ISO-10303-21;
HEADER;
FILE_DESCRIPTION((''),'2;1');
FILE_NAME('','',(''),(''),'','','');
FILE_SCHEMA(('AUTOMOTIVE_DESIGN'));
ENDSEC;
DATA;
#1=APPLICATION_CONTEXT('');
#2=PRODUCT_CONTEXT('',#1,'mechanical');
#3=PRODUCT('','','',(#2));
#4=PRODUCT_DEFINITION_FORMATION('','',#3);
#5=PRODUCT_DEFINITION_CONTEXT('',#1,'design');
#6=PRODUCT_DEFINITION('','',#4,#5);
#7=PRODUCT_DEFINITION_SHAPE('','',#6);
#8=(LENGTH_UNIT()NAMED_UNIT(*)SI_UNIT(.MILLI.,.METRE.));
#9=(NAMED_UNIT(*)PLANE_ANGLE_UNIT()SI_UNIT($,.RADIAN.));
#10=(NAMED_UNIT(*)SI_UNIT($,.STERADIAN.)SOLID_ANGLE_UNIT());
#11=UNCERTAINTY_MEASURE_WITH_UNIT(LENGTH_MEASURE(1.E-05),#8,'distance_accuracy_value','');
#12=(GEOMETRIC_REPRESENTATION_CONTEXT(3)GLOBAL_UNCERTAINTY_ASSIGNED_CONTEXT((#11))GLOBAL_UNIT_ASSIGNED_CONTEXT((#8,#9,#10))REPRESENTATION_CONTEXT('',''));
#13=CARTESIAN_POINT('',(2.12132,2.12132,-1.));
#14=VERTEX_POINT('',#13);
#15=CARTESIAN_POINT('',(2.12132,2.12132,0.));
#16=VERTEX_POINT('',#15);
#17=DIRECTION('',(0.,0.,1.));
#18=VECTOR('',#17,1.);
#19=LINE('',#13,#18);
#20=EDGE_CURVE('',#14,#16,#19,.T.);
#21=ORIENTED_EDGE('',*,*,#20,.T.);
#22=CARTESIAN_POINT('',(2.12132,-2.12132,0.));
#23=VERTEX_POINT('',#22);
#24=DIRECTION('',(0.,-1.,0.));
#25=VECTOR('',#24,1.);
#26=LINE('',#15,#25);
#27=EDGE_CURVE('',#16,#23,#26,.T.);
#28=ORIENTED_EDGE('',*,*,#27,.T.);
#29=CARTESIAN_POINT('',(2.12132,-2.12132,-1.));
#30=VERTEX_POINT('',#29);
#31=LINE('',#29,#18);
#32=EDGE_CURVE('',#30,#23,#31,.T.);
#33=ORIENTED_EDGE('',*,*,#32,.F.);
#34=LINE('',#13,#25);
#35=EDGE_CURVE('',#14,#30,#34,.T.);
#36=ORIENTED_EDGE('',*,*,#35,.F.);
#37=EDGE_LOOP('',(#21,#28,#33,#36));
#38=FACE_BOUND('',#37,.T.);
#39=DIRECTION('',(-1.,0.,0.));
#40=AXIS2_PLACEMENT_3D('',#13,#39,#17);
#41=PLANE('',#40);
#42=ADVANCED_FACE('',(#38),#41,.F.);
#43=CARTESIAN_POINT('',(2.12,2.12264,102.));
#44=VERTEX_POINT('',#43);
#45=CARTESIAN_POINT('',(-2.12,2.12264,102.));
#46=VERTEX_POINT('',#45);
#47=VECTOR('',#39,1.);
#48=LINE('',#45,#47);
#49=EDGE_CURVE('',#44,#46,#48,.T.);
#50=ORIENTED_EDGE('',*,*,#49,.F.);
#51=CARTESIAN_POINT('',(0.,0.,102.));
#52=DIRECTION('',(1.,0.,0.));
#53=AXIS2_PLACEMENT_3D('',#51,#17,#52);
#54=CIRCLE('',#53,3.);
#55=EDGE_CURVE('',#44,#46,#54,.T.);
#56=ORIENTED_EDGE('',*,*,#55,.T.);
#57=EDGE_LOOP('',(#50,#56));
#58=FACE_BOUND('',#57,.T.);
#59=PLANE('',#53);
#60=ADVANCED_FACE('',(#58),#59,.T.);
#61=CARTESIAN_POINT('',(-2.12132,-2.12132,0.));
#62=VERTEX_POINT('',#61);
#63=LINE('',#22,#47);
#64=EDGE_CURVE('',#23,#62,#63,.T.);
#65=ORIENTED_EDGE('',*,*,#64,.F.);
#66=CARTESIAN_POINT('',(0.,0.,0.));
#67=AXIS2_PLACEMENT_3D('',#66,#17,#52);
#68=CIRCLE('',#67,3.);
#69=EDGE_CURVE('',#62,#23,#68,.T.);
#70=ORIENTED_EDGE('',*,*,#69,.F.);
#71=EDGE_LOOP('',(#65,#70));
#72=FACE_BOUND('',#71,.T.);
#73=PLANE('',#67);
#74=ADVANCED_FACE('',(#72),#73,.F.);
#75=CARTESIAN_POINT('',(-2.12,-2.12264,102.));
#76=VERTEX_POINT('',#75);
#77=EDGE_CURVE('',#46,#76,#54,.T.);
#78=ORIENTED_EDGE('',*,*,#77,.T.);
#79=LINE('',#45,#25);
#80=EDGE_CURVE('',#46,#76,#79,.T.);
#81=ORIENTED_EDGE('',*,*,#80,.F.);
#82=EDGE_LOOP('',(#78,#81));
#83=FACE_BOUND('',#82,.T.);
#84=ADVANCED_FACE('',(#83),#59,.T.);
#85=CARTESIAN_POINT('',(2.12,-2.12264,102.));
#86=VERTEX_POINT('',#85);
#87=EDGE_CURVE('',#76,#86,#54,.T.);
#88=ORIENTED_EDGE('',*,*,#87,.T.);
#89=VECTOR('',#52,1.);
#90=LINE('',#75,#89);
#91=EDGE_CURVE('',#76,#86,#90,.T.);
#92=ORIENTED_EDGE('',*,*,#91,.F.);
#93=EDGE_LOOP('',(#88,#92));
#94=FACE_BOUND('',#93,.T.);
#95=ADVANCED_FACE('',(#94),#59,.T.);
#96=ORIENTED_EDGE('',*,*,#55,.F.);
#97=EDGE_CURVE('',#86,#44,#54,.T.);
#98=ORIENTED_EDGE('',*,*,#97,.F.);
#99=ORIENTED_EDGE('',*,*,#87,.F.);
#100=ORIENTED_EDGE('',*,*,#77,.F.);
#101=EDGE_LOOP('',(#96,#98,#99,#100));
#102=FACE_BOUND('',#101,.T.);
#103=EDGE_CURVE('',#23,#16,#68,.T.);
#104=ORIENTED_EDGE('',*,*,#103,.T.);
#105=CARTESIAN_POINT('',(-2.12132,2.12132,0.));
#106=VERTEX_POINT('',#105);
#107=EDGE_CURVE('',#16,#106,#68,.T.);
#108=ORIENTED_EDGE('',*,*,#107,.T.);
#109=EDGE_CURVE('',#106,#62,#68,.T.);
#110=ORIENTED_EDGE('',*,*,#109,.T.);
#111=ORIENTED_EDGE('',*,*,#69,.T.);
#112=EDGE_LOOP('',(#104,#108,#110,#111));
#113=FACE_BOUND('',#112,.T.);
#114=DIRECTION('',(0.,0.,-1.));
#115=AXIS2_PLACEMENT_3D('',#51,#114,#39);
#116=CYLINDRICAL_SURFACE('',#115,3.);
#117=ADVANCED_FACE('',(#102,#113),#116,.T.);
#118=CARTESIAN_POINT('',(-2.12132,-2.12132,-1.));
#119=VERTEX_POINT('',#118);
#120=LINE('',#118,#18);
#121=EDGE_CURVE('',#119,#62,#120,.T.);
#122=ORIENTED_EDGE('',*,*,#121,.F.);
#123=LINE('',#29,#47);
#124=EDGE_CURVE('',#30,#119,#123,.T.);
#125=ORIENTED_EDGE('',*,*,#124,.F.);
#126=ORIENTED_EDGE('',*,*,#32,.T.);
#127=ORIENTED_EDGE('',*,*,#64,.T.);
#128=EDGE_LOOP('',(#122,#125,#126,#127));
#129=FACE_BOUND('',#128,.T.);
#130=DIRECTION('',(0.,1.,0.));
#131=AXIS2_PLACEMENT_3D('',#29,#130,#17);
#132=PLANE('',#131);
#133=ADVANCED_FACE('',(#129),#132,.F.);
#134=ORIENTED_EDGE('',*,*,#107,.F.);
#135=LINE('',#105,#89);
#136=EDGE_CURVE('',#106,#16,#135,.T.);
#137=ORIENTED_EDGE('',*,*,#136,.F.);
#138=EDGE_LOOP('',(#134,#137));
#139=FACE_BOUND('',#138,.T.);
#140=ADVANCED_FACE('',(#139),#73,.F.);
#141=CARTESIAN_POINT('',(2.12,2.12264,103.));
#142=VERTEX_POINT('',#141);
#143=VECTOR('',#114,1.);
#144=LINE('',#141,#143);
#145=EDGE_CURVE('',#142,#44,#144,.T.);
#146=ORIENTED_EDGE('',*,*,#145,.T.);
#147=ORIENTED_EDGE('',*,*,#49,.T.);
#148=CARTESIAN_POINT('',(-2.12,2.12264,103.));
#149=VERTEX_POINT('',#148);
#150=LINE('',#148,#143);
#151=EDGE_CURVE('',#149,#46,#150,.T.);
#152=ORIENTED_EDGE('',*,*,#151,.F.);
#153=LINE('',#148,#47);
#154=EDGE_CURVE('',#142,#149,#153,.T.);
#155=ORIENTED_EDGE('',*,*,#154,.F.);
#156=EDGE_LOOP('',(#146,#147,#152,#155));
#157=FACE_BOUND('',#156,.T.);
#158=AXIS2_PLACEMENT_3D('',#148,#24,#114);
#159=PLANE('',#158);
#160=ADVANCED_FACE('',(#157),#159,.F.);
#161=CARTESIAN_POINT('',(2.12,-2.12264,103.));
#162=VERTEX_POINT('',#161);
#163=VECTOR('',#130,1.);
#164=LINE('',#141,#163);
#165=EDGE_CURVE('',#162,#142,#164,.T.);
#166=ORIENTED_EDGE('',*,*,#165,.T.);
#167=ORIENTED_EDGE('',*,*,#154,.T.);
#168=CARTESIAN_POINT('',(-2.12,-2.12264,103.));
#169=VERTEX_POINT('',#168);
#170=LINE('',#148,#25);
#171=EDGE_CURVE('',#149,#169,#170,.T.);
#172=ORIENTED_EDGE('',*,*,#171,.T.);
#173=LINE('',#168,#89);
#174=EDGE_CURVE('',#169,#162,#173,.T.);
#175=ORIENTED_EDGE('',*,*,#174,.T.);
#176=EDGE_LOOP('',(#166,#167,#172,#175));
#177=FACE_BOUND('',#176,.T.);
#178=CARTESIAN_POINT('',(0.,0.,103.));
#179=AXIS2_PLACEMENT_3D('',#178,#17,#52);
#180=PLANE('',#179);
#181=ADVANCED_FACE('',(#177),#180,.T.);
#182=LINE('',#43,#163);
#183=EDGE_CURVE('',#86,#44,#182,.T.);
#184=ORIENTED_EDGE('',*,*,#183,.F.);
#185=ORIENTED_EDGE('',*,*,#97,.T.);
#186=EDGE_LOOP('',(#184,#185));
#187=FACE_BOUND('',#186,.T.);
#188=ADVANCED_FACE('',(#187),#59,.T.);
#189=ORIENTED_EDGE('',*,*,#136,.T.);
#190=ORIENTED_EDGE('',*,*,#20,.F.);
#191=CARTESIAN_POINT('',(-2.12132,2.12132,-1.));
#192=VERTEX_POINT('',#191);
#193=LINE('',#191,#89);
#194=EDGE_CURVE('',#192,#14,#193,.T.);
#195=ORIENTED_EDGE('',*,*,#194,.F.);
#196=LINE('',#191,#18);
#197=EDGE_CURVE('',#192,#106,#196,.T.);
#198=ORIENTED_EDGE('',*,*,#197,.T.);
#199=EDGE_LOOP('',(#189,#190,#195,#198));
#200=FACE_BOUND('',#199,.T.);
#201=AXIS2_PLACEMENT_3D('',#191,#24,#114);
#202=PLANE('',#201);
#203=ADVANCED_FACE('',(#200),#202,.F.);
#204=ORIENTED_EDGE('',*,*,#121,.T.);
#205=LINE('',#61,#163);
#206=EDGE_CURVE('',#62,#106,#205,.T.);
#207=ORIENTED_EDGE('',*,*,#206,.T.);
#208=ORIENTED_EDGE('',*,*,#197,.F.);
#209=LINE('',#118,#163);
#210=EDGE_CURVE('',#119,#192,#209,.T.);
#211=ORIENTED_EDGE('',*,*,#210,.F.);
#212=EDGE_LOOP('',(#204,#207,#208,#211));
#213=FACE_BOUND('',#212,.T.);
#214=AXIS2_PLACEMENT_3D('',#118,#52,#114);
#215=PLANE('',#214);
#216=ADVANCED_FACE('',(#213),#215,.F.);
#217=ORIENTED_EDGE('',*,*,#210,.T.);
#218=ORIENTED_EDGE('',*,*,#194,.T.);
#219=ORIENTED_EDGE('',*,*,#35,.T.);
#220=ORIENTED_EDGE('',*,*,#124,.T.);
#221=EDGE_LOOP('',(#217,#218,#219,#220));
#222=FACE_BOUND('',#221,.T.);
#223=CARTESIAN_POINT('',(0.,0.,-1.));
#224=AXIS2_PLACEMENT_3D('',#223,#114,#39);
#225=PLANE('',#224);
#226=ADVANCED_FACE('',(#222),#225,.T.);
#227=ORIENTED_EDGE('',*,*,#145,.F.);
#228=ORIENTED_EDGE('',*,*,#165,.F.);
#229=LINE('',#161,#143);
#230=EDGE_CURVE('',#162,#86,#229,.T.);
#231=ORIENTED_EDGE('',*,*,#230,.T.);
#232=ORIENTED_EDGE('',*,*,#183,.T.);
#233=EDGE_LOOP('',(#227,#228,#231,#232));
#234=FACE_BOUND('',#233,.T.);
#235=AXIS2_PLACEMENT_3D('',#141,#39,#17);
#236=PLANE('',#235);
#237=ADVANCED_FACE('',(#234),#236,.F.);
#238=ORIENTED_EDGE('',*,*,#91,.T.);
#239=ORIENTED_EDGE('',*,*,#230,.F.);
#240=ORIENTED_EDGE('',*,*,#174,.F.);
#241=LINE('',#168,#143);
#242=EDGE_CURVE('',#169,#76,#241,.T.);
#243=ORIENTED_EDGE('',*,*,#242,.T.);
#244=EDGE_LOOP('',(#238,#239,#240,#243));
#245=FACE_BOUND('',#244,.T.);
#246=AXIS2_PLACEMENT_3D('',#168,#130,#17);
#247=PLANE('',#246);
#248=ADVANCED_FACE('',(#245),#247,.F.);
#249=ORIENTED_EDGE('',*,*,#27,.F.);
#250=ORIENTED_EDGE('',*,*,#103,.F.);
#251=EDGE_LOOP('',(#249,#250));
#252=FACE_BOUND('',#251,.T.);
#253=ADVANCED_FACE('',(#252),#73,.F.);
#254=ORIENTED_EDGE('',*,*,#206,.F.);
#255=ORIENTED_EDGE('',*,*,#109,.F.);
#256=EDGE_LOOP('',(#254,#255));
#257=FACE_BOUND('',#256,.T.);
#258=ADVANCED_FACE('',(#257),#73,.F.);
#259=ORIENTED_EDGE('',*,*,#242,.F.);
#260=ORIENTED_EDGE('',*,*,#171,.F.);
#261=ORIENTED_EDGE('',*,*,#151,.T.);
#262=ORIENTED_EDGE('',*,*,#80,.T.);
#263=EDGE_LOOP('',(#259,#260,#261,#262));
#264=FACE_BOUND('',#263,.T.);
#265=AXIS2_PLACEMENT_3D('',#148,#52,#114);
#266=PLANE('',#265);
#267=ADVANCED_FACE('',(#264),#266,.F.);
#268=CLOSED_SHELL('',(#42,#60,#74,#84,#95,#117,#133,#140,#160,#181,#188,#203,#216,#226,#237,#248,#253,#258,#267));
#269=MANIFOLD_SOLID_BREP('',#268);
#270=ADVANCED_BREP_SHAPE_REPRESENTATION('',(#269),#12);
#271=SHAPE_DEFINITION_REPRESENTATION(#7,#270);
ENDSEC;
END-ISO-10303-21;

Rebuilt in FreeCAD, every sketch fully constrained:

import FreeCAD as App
import Part
import Sketcher

V = App.Vector


def add_polygon(sketch, points):
    """Adds a closed chain of lines whose ends are joined by coincident constraints."""
    first, n = sketch.GeometryCount, len(points)
    for a, b in zip(points, points[1:] + points[:1]):
        sketch.addGeometry(Part.LineSegment(App.Vector(*a, 0), App.Vector(*b, 0)), False)
    for i in range(n):
        sketch.addConstraint(Sketcher.Constraint("Coincident", first + i, 2, first + (i + 1) % n, 1))

doc = App.newDocument("Part")
body = doc.addObject("PartDesign::Body", "Body")

sketch1 = body.newObject("Sketcher::SketchObject", "Sketch")
sketch1.AttachmentSupport = (doc.getObject("XY_Plane"), [""])
sketch1.MapMode = "FlatFace"
sketch1.addGeometry(Part.Circle(V(0, 0, 0), V(0, 0, 1), 3), False)
sketch1.addConstraint([
    Sketcher.Constraint("Coincident", 0, 3, -1, 1),
    Sketcher.Constraint("Diameter", 0, 6.0),
])
pad1 = body.newObject("PartDesign::Pad", "Pad")
pad1.Profile = sketch1
pad1.Length = 102

sketch2 = body.newObject("Sketcher::SketchObject", "Sketch001")
sketch2.AttachmentSupport = (doc.getObject("XY_Plane"), [""])
sketch2.MapMode = "FlatFace"
add_polygon(sketch2, [(2.1, 2.1), (2.1, -2.1), (-2.1, -2.1), (-2.1, 2.1)])
sketch2.addConstraint([
    Sketcher.Constraint("Vertical", 0),
    Sketcher.Constraint("Horizontal", 1),
    Sketcher.Constraint("Vertical", 2),
    Sketcher.Constraint("Horizontal", 3),
    Sketcher.Constraint("Symmetric", 0, 2, 2, 2, -1, 1),
    Sketcher.Constraint("Equal", 3, 0),
    Sketcher.Constraint("DistanceX", 1, 2, 1, 1, 4.242641),
])
pad2 = body.newObject("PartDesign::Pad", "Pad001")
pad2.Profile = sketch2
pad2.Length = 1
pad2.Reversed = True

sketch3 = body.newObject("Sketcher::SketchObject", "Sketch002")
sketch3.AttachmentSupport = (doc.getObject("XY_Plane"), [""])
sketch3.MapMode = "FlatFace"
sketch3.AttachmentOffset = App.Placement(V(0, 0, 102), App.Rotation())
add_polygon(sketch3, [(-2.1, 2.1), (-2.1, -2.1), (2.1, -2.1), (2.1, 2.1)])
sketch3.addConstraint([
    Sketcher.Constraint("Vertical", 0),
    Sketcher.Constraint("Horizontal", 1),
    Sketcher.Constraint("Vertical", 2),
    Sketcher.Constraint("Horizontal", 3),
    Sketcher.Constraint("Symmetric", 0, 2, 2, 2, -1, 1),
    Sketcher.Constraint("DistanceX", 1, 1, 1, 2, 4.24),
    Sketcher.Constraint("DistanceY", 0, 2, 0, 1, 4.24528),
])
pad3 = body.newObject("PartDesign::Pad", "Pad002")
pad3.Profile = sketch3
pad3.Length = 1

doc.recompute()
